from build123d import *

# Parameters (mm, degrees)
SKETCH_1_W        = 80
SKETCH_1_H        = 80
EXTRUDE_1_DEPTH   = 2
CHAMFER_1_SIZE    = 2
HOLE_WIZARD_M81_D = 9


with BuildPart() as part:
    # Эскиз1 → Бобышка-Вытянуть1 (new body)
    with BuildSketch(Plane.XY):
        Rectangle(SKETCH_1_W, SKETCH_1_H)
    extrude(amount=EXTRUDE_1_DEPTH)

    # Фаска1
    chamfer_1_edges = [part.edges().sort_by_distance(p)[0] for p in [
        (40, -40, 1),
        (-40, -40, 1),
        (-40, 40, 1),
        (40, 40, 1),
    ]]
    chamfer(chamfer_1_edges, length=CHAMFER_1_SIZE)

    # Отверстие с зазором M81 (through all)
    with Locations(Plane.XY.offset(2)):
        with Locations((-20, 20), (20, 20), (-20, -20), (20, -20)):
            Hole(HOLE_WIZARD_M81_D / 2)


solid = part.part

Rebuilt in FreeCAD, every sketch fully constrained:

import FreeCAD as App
import Part
import Sketcher

V = App.Vector


def edges_at(feature, points):
    """Names of the edges that pass closest to the given points."""
    edges = feature.Shape.Edges
    near = lambda p: min(range(len(edges)), key=lambda i: edges[i].distToShape(Part.Vertex(*p))[0])
    return sorted({f"Edge{near(p) + 1}" for p in points})


def add_polygon(sketch, points):
    """Adds a closed chain of lines whose ends are joined by coincident constraints."""
    first, n = sketch.GeometryCount, len(points)
    for a, b in zip(points, points[1:] + points[:1]):
        sketch.addGeometry(Part.LineSegment(App.Vector(*a, 0), App.Vector(*b, 0)), False)
    for i in range(n):
        sketch.addConstraint(Sketcher.Constraint("Coincident", first + i, 2, first + (i + 1) % n, 1))

doc = App.newDocument("Part")
body = doc.addObject("PartDesign::Body", "Body")

sketch1 = doc.addObject("Sketcher::SketchObject", "Sketch")
body.addObject(sketch1)
sketch1.AttachmentSupport = (doc.XY_Plane, [""])
sketch1.MapMode = "FlatFace"
add_polygon(sketch1, [(-40, 40), (-40, -40), (40, -40), (40, 40)])
sketch1.addConstraint([
    Sketcher.Constraint("Vertical", 0),
    Sketcher.Constraint("Horizontal", 1),
    Sketcher.Constraint("Vertical", 2),
    Sketcher.Constraint("Horizontal", 3),
    Sketcher.Constraint("Symmetric", 0, 2, 2, 2, -1, 1),
    Sketcher.Constraint("Equal", 3, 0),
    Sketcher.Constraint("DistanceX", 1, 1, 1, 2, 80.0),
])
pad1 = doc.addObject("PartDesign::Pad", "Pad")
body.addObject(pad1)
pad1.Profile = sketch1
pad1.Length = 2
doc.recompute()

chamfer = doc.addObject("PartDesign::Chamfer", "Chamfer")
body.addObject(chamfer)
chamfer.Base = (pad1, edges_at(pad1, [
    (40, -40, 1),
    (-40, -40, 1),
    (-40, 40, 1),
    (40, 40, 1),
]))
chamfer.Size = 2

sketch2 = doc.addObject("Sketcher::SketchObject", "Sketch001")
body.addObject(sketch2)
sketch2.AttachmentSupport = (doc.XY_Plane, [""])
sketch2.MapMode = "FlatFace"
sketch2.AttachmentOffset = App.Placement(V(0, 0, 2), App.Rotation())
sketch2.addGeometry([
    Part.Circle(V(-20, 20, 0), V(0, 0, 1), 4.5),
    Part.Circle(V(20, 20, 0), V(0, 0, 1), 4.5),
    Part.Circle(V(-20, -20, 0), V(0, 0, 1), 4.5),
    Part.Circle(V(20, -20, 0), V(0, 0, 1), 4.5),
], False)
sketch2.addConstraint([
    Sketcher.Constraint("Equal", 0, 1),
    Sketcher.Constraint("Equal", 1, 2),
    Sketcher.Constraint("Equal", 2, 3),
    Sketcher.Constraint("Symmetric", 1, 3, 2, 3, -1, 1),
    Sketcher.Constraint("Symmetric", 0, 3, 3, 3, -1, 1),
    Sketcher.Constraint("Symmetric", 0, 3, 1, 3, -2),
    Sketcher.Constraint("Diameter", 0, 9.0),
    Sketcher.Constraint("DistanceX", 0, 3, -1, 1, 20.0),
    Sketcher.Constraint("DistanceY", -1, 1, 0, 3, 20.0),
])
doc.recompute()
hole = doc.addObject("PartDesign::Hole", "Hole")
body.addObject(hole)
hole.Profile = sketch2
hole.ThreadType = "None"
hole.Diameter = 9
hole.DepthType = "ThroughAll"

doc.recompute()
